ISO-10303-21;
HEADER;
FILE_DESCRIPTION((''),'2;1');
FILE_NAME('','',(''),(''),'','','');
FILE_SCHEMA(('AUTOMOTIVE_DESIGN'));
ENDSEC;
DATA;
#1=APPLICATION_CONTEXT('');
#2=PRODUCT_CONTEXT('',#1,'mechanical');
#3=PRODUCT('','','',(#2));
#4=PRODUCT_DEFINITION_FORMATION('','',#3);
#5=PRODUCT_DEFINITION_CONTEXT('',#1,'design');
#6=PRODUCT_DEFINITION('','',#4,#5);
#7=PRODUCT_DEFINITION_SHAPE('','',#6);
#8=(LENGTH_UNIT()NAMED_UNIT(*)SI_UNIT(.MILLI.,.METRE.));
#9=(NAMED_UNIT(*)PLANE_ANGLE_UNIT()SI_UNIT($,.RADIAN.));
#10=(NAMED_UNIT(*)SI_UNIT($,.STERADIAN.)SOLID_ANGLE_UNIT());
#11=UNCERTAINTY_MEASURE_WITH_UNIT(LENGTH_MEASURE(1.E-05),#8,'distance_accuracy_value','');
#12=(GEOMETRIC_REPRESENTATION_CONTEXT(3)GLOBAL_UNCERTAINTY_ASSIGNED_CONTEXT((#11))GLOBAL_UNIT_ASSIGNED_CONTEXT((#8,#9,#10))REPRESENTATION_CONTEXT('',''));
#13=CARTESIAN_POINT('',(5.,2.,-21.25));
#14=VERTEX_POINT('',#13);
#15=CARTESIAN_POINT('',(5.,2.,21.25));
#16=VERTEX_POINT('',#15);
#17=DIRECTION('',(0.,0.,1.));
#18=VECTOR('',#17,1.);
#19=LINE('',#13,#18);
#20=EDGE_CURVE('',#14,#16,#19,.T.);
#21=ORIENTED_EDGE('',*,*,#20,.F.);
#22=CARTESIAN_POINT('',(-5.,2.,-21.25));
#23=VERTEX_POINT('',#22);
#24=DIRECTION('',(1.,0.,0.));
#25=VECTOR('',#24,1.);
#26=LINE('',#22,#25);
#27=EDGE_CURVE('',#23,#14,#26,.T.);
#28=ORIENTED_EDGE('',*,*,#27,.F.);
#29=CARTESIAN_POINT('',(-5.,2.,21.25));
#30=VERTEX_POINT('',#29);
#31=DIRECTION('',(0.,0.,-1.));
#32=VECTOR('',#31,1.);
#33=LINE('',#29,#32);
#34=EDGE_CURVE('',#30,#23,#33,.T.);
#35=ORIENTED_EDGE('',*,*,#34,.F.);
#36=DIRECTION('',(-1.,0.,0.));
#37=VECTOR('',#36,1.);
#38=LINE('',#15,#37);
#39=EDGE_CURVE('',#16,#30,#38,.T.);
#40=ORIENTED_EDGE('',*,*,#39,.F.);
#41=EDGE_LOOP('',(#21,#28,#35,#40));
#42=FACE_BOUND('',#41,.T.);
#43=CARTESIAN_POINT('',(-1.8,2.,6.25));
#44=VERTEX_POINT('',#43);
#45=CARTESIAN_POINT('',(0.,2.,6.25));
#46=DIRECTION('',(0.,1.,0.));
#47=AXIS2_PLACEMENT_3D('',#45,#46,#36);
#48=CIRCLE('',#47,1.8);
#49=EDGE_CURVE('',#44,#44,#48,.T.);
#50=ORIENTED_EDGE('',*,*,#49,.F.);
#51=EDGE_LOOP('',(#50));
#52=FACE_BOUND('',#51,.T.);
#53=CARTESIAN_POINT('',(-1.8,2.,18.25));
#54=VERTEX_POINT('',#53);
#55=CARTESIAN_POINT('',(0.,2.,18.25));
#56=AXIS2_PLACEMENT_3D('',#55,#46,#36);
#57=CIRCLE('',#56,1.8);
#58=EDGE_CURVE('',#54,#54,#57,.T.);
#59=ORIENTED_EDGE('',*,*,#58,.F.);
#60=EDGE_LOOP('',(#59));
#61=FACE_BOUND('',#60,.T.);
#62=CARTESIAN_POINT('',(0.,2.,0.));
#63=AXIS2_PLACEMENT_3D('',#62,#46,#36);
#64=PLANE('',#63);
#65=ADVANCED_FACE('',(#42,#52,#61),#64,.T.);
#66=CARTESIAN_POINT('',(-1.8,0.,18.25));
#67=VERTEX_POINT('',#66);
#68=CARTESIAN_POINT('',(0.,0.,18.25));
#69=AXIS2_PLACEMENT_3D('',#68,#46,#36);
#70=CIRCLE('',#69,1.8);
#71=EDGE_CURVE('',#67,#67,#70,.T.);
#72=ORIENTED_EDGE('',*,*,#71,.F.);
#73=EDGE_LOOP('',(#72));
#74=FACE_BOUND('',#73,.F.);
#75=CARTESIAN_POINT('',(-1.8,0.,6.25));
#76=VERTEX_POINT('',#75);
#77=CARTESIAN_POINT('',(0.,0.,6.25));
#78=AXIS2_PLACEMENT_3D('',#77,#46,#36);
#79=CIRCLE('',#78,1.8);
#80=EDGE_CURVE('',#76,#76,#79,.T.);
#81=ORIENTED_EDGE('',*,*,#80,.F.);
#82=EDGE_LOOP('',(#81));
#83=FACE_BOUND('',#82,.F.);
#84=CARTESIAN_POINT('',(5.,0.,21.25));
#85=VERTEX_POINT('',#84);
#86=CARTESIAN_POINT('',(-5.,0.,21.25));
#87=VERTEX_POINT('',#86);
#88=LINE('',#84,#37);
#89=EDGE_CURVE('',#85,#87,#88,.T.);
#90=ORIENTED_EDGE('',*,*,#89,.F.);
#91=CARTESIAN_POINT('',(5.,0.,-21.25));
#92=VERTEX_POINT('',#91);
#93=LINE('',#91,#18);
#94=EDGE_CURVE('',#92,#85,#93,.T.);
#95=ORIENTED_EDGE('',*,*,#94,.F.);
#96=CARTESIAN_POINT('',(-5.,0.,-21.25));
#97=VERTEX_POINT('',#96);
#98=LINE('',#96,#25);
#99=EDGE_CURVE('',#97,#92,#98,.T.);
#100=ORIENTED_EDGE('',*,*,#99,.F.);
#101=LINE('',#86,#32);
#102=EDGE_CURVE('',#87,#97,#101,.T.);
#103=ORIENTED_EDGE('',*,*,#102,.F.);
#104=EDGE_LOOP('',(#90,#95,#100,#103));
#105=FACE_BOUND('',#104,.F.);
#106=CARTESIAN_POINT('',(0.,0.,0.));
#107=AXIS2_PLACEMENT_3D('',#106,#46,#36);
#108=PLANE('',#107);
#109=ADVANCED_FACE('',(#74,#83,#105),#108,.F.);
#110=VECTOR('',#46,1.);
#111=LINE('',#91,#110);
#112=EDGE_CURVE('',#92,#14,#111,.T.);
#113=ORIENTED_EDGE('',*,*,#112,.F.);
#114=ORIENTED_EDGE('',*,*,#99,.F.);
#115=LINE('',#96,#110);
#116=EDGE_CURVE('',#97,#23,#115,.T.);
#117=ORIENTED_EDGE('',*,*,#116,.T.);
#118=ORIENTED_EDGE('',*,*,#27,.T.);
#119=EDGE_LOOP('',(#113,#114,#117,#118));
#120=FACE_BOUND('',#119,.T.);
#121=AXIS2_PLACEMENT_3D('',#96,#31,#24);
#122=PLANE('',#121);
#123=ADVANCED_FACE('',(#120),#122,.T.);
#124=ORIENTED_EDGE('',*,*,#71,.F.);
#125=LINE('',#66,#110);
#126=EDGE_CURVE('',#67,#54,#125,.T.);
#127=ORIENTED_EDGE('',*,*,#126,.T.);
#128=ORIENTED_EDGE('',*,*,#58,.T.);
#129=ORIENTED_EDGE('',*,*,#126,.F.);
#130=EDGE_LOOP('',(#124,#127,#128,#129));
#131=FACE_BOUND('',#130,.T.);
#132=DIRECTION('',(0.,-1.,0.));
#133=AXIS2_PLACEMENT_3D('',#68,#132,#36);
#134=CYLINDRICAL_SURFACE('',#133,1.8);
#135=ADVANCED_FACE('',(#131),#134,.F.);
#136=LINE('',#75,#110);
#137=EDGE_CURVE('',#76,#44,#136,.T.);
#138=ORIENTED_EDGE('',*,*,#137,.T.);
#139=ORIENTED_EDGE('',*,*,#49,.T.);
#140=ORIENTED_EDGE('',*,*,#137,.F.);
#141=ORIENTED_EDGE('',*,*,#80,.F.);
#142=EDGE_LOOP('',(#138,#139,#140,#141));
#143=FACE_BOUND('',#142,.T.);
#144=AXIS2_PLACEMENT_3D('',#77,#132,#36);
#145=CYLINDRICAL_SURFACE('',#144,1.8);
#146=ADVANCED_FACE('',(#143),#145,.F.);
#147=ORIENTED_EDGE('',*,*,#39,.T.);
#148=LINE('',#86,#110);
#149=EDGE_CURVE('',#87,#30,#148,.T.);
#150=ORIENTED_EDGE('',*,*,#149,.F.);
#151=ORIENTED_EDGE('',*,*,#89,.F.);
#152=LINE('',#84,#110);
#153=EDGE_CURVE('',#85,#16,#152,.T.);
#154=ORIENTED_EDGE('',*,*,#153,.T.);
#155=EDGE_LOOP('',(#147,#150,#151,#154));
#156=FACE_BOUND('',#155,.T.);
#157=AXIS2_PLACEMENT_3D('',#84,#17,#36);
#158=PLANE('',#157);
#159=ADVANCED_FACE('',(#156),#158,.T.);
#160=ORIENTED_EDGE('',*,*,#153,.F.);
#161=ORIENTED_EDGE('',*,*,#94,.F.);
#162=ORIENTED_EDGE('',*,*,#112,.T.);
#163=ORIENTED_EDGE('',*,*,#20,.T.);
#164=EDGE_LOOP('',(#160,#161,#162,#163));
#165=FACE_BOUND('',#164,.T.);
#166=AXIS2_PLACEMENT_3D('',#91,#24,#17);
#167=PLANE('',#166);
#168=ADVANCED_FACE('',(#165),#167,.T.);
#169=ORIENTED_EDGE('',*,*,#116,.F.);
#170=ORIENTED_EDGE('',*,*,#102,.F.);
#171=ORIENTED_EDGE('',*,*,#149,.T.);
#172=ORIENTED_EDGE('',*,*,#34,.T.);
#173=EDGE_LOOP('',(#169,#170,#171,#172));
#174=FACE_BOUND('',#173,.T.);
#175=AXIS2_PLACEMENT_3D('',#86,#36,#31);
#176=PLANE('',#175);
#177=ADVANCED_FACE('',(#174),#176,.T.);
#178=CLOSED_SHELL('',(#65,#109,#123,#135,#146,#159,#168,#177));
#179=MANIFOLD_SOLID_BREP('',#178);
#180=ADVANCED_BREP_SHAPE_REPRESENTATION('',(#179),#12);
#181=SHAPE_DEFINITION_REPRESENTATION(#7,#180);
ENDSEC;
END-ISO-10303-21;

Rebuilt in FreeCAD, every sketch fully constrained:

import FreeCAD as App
import Part
import Sketcher
from FreeCAD import Vector

doc = App.newDocument("Part")
body = doc.addObject("PartDesign::Body", "Body")

# Sketch on XZ plane
sketch1 = body.newObject("Sketcher::SketchObject", "Sketch")
sketch1.AttachmentSupport = (doc.getObject("XZ_Plane"), [""])
sketch1.MapMode = "FlatFace"
sketch1.addGeometry([
    Part.LineSegment(Vector(-5, 21.2, 0), Vector(5, 21.2, 0)),  # 0
    Part.LineSegment(Vector(5, 21.2, 0), Vector(5, -21.2, 0)),  # 1
    Part.LineSegment(Vector(5, -21.2, 0), Vector(-5, -21.2, 0)),  # 2
    Part.LineSegment(Vector(-5, -21.2, 0), Vector(-5, 21.2, 0)),  # 3
    Part.Circle(Vector(0, 6.2, 0), Vector(0, 0, 1), 1.8),  # 4
    Part.Circle(Vector(0, 18.2, 0), Vector(0, 0, 1), 1.8),  # 5
], False)
sketch1.addConstraint([
    Sketcher.Constraint("Coincident", 0, 2, 1, 1),
    Sketcher.Constraint("Coincident", 1, 2, 2, 1),
    Sketcher.Constraint("Coincident", 2, 2, 3, 1),
    Sketcher.Constraint("Coincident", 3, 2, 0, 1),
    Sketcher.Constraint("Horizontal", 0),
    Sketcher.Constraint("Vertical", 1),
    Sketcher.Constraint("Horizontal", 2),
    Sketcher.Constraint("Vertical", 3),
    Sketcher.Constraint("Equal", 4, 5),
    Sketcher.Constraint("Symmetric", 0, 2, 2, 2, -1, 1),
    Sketcher.Constraint("PointOnObject", 4, 3, -2),
    Sketcher.Constraint("PointOnObject", 5, 3, -2),
    Sketcher.Constraint("Diameter", 4, 3.6),
    Sketcher.Constraint("DistanceX", 0, 1, 0, 2, 10.0),
    Sketcher.Constraint("DistanceY", 1, 2, 1, 1, 42.5),
    Sketcher.Constraint("DistanceY", 5, 3, 0, 2, 3.0),
    Sketcher.Constraint("DistanceY", 4, 3, 0, 2, 15.0),
])
pad1 = body.newObject("PartDesign::Pad", "Pad")
pad1.Profile = sketch1
pad1.Length = 2
pad1.Reversed = True

doc.recompute()
